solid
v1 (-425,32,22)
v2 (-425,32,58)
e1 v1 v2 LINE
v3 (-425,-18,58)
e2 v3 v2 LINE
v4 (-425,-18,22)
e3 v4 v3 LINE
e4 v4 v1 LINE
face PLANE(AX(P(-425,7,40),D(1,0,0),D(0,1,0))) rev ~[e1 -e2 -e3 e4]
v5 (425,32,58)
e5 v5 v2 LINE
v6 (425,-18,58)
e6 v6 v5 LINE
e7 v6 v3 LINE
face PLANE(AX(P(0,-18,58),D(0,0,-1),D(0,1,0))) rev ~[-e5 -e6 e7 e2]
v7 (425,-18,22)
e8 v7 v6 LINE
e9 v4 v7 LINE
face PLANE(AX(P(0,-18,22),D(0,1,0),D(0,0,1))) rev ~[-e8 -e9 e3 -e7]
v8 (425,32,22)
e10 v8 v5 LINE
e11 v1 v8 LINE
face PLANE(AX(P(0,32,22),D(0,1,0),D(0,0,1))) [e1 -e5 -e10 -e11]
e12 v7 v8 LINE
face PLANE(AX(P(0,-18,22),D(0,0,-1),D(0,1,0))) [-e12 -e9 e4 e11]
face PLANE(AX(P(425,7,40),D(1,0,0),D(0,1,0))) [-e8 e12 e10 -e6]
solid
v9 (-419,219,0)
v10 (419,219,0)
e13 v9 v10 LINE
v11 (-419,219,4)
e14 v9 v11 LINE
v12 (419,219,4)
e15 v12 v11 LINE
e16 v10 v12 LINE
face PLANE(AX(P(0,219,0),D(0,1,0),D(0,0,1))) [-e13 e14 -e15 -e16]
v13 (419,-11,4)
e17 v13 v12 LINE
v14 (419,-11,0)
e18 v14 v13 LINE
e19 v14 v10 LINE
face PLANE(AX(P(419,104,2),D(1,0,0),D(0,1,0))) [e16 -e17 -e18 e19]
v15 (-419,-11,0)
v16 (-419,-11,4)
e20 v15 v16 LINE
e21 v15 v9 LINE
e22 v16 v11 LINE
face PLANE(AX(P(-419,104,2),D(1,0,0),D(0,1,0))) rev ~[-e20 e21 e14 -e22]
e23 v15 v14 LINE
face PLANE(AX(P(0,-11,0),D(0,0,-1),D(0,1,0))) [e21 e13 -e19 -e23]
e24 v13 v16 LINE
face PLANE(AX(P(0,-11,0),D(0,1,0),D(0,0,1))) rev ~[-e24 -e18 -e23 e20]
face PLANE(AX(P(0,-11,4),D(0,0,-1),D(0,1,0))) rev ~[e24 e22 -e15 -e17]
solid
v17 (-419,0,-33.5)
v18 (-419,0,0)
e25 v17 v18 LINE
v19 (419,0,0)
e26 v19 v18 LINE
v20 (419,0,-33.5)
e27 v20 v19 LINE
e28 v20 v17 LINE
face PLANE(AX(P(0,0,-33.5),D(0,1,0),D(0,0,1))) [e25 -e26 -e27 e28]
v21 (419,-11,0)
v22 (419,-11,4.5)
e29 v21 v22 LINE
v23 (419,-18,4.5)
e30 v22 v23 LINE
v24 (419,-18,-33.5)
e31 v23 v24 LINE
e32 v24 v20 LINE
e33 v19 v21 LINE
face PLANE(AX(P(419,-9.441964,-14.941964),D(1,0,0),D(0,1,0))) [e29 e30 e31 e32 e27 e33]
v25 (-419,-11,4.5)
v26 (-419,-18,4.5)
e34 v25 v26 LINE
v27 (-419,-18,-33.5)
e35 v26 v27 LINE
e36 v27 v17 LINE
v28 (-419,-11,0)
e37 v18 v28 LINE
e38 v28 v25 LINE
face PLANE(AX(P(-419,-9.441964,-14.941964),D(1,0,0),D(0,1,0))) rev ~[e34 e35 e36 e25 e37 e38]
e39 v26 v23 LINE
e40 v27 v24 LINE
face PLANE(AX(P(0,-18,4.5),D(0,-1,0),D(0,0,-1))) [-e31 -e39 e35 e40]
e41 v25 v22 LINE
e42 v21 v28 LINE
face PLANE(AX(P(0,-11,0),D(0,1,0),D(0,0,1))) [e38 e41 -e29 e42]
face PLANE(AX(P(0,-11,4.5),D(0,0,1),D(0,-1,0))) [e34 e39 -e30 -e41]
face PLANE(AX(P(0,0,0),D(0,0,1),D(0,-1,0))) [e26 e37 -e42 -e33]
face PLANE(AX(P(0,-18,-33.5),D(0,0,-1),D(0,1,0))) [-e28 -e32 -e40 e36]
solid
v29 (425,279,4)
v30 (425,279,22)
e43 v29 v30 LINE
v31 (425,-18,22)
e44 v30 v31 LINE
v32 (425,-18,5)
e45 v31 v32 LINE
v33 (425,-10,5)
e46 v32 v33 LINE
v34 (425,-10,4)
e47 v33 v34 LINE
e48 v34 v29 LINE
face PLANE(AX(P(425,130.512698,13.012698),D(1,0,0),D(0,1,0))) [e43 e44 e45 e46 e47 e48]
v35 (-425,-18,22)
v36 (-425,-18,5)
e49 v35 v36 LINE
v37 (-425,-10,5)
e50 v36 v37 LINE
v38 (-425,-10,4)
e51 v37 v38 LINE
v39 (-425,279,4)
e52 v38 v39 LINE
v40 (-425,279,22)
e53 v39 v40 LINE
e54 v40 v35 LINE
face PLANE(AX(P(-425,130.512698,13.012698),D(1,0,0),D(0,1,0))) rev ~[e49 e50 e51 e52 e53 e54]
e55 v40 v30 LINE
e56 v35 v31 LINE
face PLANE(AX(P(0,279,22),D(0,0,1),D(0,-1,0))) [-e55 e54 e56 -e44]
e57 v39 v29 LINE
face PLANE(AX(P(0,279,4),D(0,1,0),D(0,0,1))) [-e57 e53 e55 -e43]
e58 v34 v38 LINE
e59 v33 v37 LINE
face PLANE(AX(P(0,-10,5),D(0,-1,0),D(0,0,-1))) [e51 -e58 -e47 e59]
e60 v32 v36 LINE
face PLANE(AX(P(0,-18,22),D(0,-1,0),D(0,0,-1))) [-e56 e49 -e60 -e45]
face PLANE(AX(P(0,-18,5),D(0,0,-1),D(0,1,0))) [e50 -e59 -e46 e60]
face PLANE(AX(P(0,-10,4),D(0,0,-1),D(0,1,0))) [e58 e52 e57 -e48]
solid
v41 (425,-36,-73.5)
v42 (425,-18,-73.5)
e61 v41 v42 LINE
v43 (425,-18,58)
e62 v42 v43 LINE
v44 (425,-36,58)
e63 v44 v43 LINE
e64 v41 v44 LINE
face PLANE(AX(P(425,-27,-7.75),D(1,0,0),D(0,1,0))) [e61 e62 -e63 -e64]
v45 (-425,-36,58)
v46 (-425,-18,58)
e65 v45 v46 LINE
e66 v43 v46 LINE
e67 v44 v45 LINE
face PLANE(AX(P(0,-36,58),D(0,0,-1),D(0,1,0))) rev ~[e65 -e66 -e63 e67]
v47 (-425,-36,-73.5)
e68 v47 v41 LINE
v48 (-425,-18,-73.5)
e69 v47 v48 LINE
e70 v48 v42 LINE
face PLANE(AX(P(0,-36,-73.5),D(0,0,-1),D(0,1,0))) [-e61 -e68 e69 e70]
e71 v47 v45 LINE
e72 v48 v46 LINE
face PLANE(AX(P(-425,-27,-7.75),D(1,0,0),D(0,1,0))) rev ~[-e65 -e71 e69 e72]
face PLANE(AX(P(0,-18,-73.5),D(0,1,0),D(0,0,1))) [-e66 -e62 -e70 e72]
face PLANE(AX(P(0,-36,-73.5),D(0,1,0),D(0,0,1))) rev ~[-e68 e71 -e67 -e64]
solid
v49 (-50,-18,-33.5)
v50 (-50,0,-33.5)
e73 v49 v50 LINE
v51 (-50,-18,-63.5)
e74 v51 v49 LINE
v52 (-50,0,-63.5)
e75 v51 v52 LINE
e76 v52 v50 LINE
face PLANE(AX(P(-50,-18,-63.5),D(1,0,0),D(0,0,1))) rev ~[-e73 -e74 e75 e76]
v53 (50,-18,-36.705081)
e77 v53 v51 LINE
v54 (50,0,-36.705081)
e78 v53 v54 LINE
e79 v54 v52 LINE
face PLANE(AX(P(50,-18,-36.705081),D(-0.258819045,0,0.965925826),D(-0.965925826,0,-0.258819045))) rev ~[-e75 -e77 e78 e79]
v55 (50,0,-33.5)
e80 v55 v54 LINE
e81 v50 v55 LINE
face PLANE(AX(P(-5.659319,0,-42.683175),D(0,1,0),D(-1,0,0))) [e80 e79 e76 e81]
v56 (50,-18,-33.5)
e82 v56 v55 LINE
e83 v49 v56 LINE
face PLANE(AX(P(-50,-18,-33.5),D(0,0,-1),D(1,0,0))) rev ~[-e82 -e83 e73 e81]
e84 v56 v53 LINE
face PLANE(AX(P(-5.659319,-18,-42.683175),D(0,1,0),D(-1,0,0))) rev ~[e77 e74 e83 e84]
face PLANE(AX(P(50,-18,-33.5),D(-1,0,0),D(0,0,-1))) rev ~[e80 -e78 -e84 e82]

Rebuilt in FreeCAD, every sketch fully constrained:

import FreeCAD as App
import Part
import Sketcher
Q = App.Units.Quantity

doc = App.newDocument("Part")
params = doc.addObject("Spreadsheet::Sheet", "Params")
for row, (alias, value) in enumerate([
    ("sketch1_width", "289 mm"),
    ("sketch1_width2", "297 mm"),
    ("sketch1_height", "18 mm"),
    ("sketch1_height2", "17 mm"),
    ("pad1_length", "850 mm"),
    ("sketch2_width", "50 mm"),
    ("sketch2_height", "36 mm"),
    ("pad2_length", "850 mm"),
    ("sketch3_width", "18 mm"),
    ("sketch3_height", "131.5 mm"),
    ("pad3_length", "850 mm"),
    ("sketch4_width", "230 mm"),
    ("sketch4_height", "4 mm"),
    ("pad4_length", "838 mm"),
    ("sketch5_width", "7 mm"),
    ("sketch5_width2", "18 mm"),
    ("sketch5_height", "38 mm"),
    ("sketch5_height2", "4.5 mm"),
    ("pad5_length", "838 mm"),
    ("sketch6_width", "100 mm"),
    ("sketch6_height", "30 mm"),
    ("pad6_length", "18 mm"),
], start=1):
    params.set(f"A{row}", alias)
    params.set(f"B{row}", "=" + value)
    params.setAlias(f"B{row}", alias)

body = doc.addObject("PartDesign::Body", "Body")

# Sketch on YZ plane
sketch1 = doc.addObject("Sketcher::SketchObject", "Sketch")
body.addObject(sketch1)
sketch1.AttachmentSupport = (doc.YZ_Plane, [""])
sketch1.MapMode = "FlatFace"
sketch1.addGeometry([
    Part.LineSegment(App.Vector(-10, 4, 0), App.Vector(279, 4, 0)),  # 0
    Part.LineSegment(App.Vector(279, 4, 0), App.Vector(279, 22, 0)),  # 1
    Part.LineSegment(App.Vector(279, 22, 0), App.Vector(-18, 22, 0)),  # 2
    Part.LineSegment(App.Vector(-18, 22, 0), App.Vector(-18, 5, 0)),  # 3
    Part.LineSegment(App.Vector(-18, 5, 0), App.Vector(-10, 5, 0)),  # 4
    Part.LineSegment(App.Vector(-10, 5, 0), App.Vector(-10, 4, 0)),  # 5
], False)
sketch1.addConstraint([
    Sketcher.Constraint("Coincident", 0, 2, 1, 1),
    Sketcher.Constraint("Coincident", 1, 2, 2, 1),
    Sketcher.Constraint("Coincident", 2, 2, 3, 1),
    Sketcher.Constraint("Coincident", 3, 2, 4, 1),
    Sketcher.Constraint("Coincident", 4, 2, 5, 1),
    Sketcher.Constraint("Coincident", 5, 2, 0, 1),
    Sketcher.Constraint("Horizontal", 0),
    Sketcher.Constraint("Vertical", 1),
    Sketcher.Constraint("Horizontal", 2),
    Sketcher.Constraint("Vertical", 3),
    Sketcher.Constraint("Horizontal", 4),
    Sketcher.Constraint("Vertical", 5),
    Sketcher.Constraint("DistanceX", 0, 1, 0, 2, Q("289 mm")),
    Sketcher.Constraint("DistanceX", 2, 2, 2, 1, Q("297 mm")),
    Sketcher.Constraint("DistanceY", 1, 1, 1, 2, Q("18 mm")),
    Sketcher.Constraint("DistanceY", 3, 2, 3, 1, Q("17 mm")),
    Sketcher.Constraint("DistanceX", -1, 1, 0, 2, Q("279 mm")),
    Sketcher.Constraint("DistanceY", -1, 1, 0, 2, Q("4 mm")),
])
sketch1.setExpression("Constraints[12]", "Params.sketch1_width")
sketch1.setExpression("Constraints[13]", "Params.sketch1_width2")
sketch1.setExpression("Constraints[14]", "Params.sketch1_height")
sketch1.setExpression("Constraints[15]", "Params.sketch1_height2")
pad1 = doc.addObject("PartDesign::Pad", "Pad")
body.addObject(pad1)
pad1.Profile = sketch1
pad1.setExpression("Length", "Params.pad1_length")
pad1.Midplane = True
body2 = doc.addObject("PartDesign::Body", "Body001")

# Sketch on YZ plane
sketch2 = doc.addObject("Sketcher::SketchObject", "Sketch001")
body2.addObject(sketch2)
sketch2.AttachmentSupport = (doc.getObject("YZ_Plane001"), [""])
sketch2.MapMode = "FlatFace"
sketch2.addGeometry([
    Part.LineSegment(App.Vector(-18, 58, 0), App.Vector(-18, 22, 0)),
    Part.LineSegment(App.Vector(-18, 22, 0), App.Vector(32, 22, 0)),
    Part.LineSegment(App.Vector(32, 22, 0), App.Vector(32, 58, 0)),
    Part.LineSegment(App.Vector(32, 58, 0), App.Vector(-18, 58, 0)),
], False)
sketch2.addConstraint([
    Sketcher.Constraint("Coincident", 0, 2, 1, 1),
    Sketcher.Constraint("Coincident", 1, 2, 2, 1),
    Sketcher.Constraint("Coincident", 2, 2, 3, 1),
    Sketcher.Constraint("Coincident", 3, 2, 0, 1),
    Sketcher.Constraint("Vertical", 0),
    Sketcher.Constraint("Horizontal", 1),
    Sketcher.Constraint("Vertical", 2),
    Sketcher.Constraint("Horizontal", 3),
    Sketcher.Constraint("DistanceX", 1, 1, 1, 2, Q("50 mm")),
    Sketcher.Constraint("DistanceY", 0, 2, 0, 1, Q("36 mm")),
    Sketcher.Constraint("DistanceX", 0, 2, -1, 1, Q("18 mm")),
    Sketcher.Constraint("DistanceY", -1, 1, 0, 2, Q("22 mm")),
])
sketch2.setExpression("Constraints[8]", "Params.sketch2_width")
sketch2.setExpression("Constraints[9]", "Params.sketch2_height")
pad2 = doc.addObject("PartDesign::Pad", "Pad001")
body2.addObject(pad2)
pad2.Profile = sketch2
pad2.setExpression("Length", "Params.pad2_length")
pad2.Midplane = True
body3 = doc.addObject("PartDesign::Body", "Body002")

# Sketch on YZ plane
sketch3 = doc.addObject("Sketcher::SketchObject", "Sketch002")
body3.addObject(sketch3)
sketch3.AttachmentSupport = (doc.getObject("YZ_Plane002"), [""])
sketch3.MapMode = "FlatFace"
sketch3.addGeometry([
    Part.LineSegment(App.Vector(-36, 58, 0), App.Vector(-36, -74, 0)),
    Part.LineSegment(App.Vector(-36, -74, 0), App.Vector(-18, -74, 0)),
    Part.LineSegment(App.Vector(-18, -74, 0), App.Vector(-18, 58, 0)),
    Part.LineSegment(App.Vector(-18, 58, 0), App.Vector(-36, 58, 0)),
], False)
sketch3.addConstraint([
    Sketcher.Constraint("Coincident", 0, 2, 1, 1),
    Sketcher.Constraint("Coincident", 1, 2, 2, 1),
    Sketcher.Constraint("Coincident", 2, 2, 3, 1),
    Sketcher.Constraint("Coincident", 3, 2, 0, 1),
    Sketcher.Constraint("Vertical", 0),
    Sketcher.Constraint("Horizontal", 1),
    Sketcher.Constraint("Vertical", 2),
    Sketcher.Constraint("Horizontal", 3),
    Sketcher.Constraint("DistanceX", 1, 1, 1, 2, Q("18 mm")),
    Sketcher.Constraint("DistanceY", 0, 2, 0, 1, Q("131.5 mm")),
    Sketcher.Constraint("DistanceX", 0, 2, -1, 1, Q("36 mm")),
    Sketcher.Constraint("DistanceY", -1, 1, 2, 2, Q("58 mm")),
])
sketch3.setExpression("Constraints[8]", "Params.sketch3_width")
sketch3.setExpression("Constraints[9]", "Params.sketch3_height")
pad3 = doc.addObject("PartDesign::Pad", "Pad002")
body3.addObject(pad3)
pad3.Profile = sketch3
pad3.setExpression("Length", "Params.pad3_length")
pad3.Midplane = True
body4 = doc.addObject("PartDesign::Body", "Body003")

# Sketch on YZ plane
sketch4 = doc.addObject("Sketcher::SketchObject", "Sketch003")
body4.addObject(sketch4)
sketch4.AttachmentSupport = (doc.getObject("YZ_Plane003"), [""])
sketch4.MapMode = "FlatFace"
sketch4.addGeometry([
    Part.LineSegment(App.Vector(-11, 4, 0), App.Vector(-11, 0, 0)),
    Part.LineSegment(App.Vector(-11, 0, 0), App.Vector(219, 0, 0)),
    Part.LineSegment(App.Vector(219, 0, 0), App.Vector(219, 4, 0)),
    Part.LineSegment(App.Vector(219, 4, 0), App.Vector(-11, 4, 0)),
], False)
sketch4.addConstraint([
    Sketcher.Constraint("Coincident", 0, 2, 1, 1),
    Sketcher.Constraint("Coincident", 1, 2, 2, 1),
    Sketcher.Constraint("Coincident", 2, 2, 3, 1),
    Sketcher.Constraint("Coincident", 3, 2, 0, 1),
    Sketcher.Constraint("Vertical", 0),
    Sketcher.Constraint("Horizontal", 1),
    Sketcher.Constraint("Vertical", 2),
    Sketcher.Constraint("Horizontal", 3),
    Sketcher.Constraint("PointOnObject", 0, 2, -1),
    Sketcher.Constraint("DistanceX", 1, 1, 1, 2, Q("230 mm")),
    Sketcher.Constraint("DistanceY", 0, 2, 0, 1, Q("4 mm")),
    Sketcher.Constraint("DistanceX", 0, 2, -1, 1, Q("11 mm")),
])
sketch4.setExpression("Constraints[9]", "Params.sketch4_width")
sketch4.setExpression("Constraints[10]", "Params.sketch4_height")
pad4 = doc.addObject("PartDesign::Pad", "Pad003")
body4.addObject(pad4)
pad4.Profile = sketch4
pad4.setExpression("Length", "Params.pad4_length")
pad4.Midplane = True
body5 = doc.addObject("PartDesign::Body", "Body004")

# Sketch on YZ plane
sketch5 = doc.addObject("Sketcher::SketchObject", "Sketch004")
body5.addObject(sketch5)
sketch5.AttachmentSupport = (doc.getObject("YZ_Plane004"), [""])
sketch5.MapMode = "FlatFace"
sketch5.addGeometry([
    Part.LineSegment(App.Vector(-11, 0, 0), App.Vector(-11, 4.5, 0)),  # 0
    Part.LineSegment(App.Vector(-11, 4.5, 0), App.Vector(-18, 4.5, 0)),  # 1
    Part.LineSegment(App.Vector(-18, 4.5, 0), App.Vector(-18, -33.5, 0)),  # 2
    Part.LineSegment(App.Vector(-18, -33.5, 0), App.Vector(0, -33.5, 0)),  # 3
    Part.LineSegment(App.Vector(0, -33.5, 0), App.Vector(0, 0, 0)),  # 4
    Part.LineSegment(App.Vector(0, 0, 0), App.Vector(-11, 0, 0)),  # 5
], False)
sketch5.addConstraint([
    Sketcher.Constraint("Coincident", 0, 2, 1, 1),
    Sketcher.Constraint("Coincident", 1, 2, 2, 1),
    Sketcher.Constraint("Coincident", 2, 2, 3, 1),
    Sketcher.Constraint("Coincident", 3, 2, 4, 1),
    Sketcher.Constraint("Coincident", 4, 2, 5, 1),
    Sketcher.Constraint("Coincident", 5, 2, 0, 1),
    Sketcher.Constraint("Vertical", 0),
    Sketcher.Constraint("Horizontal", 1),
    Sketcher.Constraint("Vertical", 2),
    Sketcher.Constraint("Horizontal", 3),
    Sketcher.Constraint("Vertical", 4),
    Sketcher.Constraint("Horizontal", 5),
    Sketcher.Constraint("Coincident", 4, 2, -1, 1),
    Sketcher.Constraint("DistanceX", 1, 2, 1, 1, Q("7 mm")),
    Sketcher.Constraint("DistanceX", 3, 1, 3, 2, Q("18 mm")),
    Sketcher.Constraint("DistanceY", 2, 2, 2, 1, Q("38 mm")),
    Sketcher.Constraint("DistanceY", 0, 1, 0, 2, Q("4.5 mm")),
])
sketch5.setExpression("Constraints[13]", "Params.sketch5_width")
sketch5.setExpression("Constraints[14]", "Params.sketch5_width2")
sketch5.setExpression("Constraints[15]", "Params.sketch5_height")
sketch5.setExpression("Constraints[16]", "Params.sketch5_height2")
pad5 = doc.addObject("PartDesign::Pad", "Pad004")
body5.addObject(pad5)
pad5.Profile = sketch5
pad5.setExpression("Length", "Params.pad5_length")
pad5.Midplane = True
body6 = doc.addObject("PartDesign::Body", "Body005")

# Sketch on XZ plane
sketch6 = doc.addObject("Sketcher::SketchObject", "Sketch005")
body6.addObject(sketch6)
sketch6.AttachmentSupport = (doc.getObject("XZ_Plane005"), [""])
sketch6.MapMode = "FlatFace"
sketch6.AttachmentOffset = App.Placement(App.Vector(0, 0, 18), App.Rotation())
sketch6.addGeometry([
    Part.LineSegment(App.Vector(-50, -33.5, 0), App.Vector(50, -33.5, 0)),
    Part.LineSegment(App.Vector(50, -33.5, 0), App.Vector(50, -36.7, 0)),
    Part.LineSegment(App.Vector(50, -36.7, 0), App.Vector(-50, -63.5, 0)),
    Part.LineSegment(App.Vector(-50, -63.5, 0), App.Vector(-50, -33.5, 0)),
], False)
sketch6.addConstraint([
    Sketcher.Constraint("Coincident", 0, 2, 1, 1),
    Sketcher.Constraint("Coincident", 1, 2, 2, 1),
    Sketcher.Constraint("Coincident", 2, 2, 3, 1),
    Sketcher.Constraint("Coincident", 3, 2, 0, 1),
    Sketcher.Constraint("Horizontal", 0),
    Sketcher.Constraint("Vertical", 1),
    Sketcher.Constraint("Vertical", 3),
    Sketcher.Constraint("DistanceX", 0, 1, 0, 2, Q("100 mm")),
    Sketcher.Constraint("DistanceY", 3, 1, 3, 2, Q("30 mm")),
    Sketcher.Constraint("Angle", 2, Q("-165 deg")),
    Sketcher.Constraint("DistanceX", -1, 1, 0, 2, Q("50 mm")),
    Sketcher.Constraint("DistanceY", 0, 2, -1, 1, Q("33.5 mm")),
])
sketch6.setExpression("Constraints[7]", "Params.sketch6_width")
sketch6.setExpression("Constraints[8]", "Params.sketch6_height")
pad6 = doc.addObject("PartDesign::Pad", "Pad005")
body6.addObject(pad6)
pad6.Profile = sketch6
pad6.setExpression("Length", "Params.pad6_length")
pad6.Reversed = True

doc.recompute()
